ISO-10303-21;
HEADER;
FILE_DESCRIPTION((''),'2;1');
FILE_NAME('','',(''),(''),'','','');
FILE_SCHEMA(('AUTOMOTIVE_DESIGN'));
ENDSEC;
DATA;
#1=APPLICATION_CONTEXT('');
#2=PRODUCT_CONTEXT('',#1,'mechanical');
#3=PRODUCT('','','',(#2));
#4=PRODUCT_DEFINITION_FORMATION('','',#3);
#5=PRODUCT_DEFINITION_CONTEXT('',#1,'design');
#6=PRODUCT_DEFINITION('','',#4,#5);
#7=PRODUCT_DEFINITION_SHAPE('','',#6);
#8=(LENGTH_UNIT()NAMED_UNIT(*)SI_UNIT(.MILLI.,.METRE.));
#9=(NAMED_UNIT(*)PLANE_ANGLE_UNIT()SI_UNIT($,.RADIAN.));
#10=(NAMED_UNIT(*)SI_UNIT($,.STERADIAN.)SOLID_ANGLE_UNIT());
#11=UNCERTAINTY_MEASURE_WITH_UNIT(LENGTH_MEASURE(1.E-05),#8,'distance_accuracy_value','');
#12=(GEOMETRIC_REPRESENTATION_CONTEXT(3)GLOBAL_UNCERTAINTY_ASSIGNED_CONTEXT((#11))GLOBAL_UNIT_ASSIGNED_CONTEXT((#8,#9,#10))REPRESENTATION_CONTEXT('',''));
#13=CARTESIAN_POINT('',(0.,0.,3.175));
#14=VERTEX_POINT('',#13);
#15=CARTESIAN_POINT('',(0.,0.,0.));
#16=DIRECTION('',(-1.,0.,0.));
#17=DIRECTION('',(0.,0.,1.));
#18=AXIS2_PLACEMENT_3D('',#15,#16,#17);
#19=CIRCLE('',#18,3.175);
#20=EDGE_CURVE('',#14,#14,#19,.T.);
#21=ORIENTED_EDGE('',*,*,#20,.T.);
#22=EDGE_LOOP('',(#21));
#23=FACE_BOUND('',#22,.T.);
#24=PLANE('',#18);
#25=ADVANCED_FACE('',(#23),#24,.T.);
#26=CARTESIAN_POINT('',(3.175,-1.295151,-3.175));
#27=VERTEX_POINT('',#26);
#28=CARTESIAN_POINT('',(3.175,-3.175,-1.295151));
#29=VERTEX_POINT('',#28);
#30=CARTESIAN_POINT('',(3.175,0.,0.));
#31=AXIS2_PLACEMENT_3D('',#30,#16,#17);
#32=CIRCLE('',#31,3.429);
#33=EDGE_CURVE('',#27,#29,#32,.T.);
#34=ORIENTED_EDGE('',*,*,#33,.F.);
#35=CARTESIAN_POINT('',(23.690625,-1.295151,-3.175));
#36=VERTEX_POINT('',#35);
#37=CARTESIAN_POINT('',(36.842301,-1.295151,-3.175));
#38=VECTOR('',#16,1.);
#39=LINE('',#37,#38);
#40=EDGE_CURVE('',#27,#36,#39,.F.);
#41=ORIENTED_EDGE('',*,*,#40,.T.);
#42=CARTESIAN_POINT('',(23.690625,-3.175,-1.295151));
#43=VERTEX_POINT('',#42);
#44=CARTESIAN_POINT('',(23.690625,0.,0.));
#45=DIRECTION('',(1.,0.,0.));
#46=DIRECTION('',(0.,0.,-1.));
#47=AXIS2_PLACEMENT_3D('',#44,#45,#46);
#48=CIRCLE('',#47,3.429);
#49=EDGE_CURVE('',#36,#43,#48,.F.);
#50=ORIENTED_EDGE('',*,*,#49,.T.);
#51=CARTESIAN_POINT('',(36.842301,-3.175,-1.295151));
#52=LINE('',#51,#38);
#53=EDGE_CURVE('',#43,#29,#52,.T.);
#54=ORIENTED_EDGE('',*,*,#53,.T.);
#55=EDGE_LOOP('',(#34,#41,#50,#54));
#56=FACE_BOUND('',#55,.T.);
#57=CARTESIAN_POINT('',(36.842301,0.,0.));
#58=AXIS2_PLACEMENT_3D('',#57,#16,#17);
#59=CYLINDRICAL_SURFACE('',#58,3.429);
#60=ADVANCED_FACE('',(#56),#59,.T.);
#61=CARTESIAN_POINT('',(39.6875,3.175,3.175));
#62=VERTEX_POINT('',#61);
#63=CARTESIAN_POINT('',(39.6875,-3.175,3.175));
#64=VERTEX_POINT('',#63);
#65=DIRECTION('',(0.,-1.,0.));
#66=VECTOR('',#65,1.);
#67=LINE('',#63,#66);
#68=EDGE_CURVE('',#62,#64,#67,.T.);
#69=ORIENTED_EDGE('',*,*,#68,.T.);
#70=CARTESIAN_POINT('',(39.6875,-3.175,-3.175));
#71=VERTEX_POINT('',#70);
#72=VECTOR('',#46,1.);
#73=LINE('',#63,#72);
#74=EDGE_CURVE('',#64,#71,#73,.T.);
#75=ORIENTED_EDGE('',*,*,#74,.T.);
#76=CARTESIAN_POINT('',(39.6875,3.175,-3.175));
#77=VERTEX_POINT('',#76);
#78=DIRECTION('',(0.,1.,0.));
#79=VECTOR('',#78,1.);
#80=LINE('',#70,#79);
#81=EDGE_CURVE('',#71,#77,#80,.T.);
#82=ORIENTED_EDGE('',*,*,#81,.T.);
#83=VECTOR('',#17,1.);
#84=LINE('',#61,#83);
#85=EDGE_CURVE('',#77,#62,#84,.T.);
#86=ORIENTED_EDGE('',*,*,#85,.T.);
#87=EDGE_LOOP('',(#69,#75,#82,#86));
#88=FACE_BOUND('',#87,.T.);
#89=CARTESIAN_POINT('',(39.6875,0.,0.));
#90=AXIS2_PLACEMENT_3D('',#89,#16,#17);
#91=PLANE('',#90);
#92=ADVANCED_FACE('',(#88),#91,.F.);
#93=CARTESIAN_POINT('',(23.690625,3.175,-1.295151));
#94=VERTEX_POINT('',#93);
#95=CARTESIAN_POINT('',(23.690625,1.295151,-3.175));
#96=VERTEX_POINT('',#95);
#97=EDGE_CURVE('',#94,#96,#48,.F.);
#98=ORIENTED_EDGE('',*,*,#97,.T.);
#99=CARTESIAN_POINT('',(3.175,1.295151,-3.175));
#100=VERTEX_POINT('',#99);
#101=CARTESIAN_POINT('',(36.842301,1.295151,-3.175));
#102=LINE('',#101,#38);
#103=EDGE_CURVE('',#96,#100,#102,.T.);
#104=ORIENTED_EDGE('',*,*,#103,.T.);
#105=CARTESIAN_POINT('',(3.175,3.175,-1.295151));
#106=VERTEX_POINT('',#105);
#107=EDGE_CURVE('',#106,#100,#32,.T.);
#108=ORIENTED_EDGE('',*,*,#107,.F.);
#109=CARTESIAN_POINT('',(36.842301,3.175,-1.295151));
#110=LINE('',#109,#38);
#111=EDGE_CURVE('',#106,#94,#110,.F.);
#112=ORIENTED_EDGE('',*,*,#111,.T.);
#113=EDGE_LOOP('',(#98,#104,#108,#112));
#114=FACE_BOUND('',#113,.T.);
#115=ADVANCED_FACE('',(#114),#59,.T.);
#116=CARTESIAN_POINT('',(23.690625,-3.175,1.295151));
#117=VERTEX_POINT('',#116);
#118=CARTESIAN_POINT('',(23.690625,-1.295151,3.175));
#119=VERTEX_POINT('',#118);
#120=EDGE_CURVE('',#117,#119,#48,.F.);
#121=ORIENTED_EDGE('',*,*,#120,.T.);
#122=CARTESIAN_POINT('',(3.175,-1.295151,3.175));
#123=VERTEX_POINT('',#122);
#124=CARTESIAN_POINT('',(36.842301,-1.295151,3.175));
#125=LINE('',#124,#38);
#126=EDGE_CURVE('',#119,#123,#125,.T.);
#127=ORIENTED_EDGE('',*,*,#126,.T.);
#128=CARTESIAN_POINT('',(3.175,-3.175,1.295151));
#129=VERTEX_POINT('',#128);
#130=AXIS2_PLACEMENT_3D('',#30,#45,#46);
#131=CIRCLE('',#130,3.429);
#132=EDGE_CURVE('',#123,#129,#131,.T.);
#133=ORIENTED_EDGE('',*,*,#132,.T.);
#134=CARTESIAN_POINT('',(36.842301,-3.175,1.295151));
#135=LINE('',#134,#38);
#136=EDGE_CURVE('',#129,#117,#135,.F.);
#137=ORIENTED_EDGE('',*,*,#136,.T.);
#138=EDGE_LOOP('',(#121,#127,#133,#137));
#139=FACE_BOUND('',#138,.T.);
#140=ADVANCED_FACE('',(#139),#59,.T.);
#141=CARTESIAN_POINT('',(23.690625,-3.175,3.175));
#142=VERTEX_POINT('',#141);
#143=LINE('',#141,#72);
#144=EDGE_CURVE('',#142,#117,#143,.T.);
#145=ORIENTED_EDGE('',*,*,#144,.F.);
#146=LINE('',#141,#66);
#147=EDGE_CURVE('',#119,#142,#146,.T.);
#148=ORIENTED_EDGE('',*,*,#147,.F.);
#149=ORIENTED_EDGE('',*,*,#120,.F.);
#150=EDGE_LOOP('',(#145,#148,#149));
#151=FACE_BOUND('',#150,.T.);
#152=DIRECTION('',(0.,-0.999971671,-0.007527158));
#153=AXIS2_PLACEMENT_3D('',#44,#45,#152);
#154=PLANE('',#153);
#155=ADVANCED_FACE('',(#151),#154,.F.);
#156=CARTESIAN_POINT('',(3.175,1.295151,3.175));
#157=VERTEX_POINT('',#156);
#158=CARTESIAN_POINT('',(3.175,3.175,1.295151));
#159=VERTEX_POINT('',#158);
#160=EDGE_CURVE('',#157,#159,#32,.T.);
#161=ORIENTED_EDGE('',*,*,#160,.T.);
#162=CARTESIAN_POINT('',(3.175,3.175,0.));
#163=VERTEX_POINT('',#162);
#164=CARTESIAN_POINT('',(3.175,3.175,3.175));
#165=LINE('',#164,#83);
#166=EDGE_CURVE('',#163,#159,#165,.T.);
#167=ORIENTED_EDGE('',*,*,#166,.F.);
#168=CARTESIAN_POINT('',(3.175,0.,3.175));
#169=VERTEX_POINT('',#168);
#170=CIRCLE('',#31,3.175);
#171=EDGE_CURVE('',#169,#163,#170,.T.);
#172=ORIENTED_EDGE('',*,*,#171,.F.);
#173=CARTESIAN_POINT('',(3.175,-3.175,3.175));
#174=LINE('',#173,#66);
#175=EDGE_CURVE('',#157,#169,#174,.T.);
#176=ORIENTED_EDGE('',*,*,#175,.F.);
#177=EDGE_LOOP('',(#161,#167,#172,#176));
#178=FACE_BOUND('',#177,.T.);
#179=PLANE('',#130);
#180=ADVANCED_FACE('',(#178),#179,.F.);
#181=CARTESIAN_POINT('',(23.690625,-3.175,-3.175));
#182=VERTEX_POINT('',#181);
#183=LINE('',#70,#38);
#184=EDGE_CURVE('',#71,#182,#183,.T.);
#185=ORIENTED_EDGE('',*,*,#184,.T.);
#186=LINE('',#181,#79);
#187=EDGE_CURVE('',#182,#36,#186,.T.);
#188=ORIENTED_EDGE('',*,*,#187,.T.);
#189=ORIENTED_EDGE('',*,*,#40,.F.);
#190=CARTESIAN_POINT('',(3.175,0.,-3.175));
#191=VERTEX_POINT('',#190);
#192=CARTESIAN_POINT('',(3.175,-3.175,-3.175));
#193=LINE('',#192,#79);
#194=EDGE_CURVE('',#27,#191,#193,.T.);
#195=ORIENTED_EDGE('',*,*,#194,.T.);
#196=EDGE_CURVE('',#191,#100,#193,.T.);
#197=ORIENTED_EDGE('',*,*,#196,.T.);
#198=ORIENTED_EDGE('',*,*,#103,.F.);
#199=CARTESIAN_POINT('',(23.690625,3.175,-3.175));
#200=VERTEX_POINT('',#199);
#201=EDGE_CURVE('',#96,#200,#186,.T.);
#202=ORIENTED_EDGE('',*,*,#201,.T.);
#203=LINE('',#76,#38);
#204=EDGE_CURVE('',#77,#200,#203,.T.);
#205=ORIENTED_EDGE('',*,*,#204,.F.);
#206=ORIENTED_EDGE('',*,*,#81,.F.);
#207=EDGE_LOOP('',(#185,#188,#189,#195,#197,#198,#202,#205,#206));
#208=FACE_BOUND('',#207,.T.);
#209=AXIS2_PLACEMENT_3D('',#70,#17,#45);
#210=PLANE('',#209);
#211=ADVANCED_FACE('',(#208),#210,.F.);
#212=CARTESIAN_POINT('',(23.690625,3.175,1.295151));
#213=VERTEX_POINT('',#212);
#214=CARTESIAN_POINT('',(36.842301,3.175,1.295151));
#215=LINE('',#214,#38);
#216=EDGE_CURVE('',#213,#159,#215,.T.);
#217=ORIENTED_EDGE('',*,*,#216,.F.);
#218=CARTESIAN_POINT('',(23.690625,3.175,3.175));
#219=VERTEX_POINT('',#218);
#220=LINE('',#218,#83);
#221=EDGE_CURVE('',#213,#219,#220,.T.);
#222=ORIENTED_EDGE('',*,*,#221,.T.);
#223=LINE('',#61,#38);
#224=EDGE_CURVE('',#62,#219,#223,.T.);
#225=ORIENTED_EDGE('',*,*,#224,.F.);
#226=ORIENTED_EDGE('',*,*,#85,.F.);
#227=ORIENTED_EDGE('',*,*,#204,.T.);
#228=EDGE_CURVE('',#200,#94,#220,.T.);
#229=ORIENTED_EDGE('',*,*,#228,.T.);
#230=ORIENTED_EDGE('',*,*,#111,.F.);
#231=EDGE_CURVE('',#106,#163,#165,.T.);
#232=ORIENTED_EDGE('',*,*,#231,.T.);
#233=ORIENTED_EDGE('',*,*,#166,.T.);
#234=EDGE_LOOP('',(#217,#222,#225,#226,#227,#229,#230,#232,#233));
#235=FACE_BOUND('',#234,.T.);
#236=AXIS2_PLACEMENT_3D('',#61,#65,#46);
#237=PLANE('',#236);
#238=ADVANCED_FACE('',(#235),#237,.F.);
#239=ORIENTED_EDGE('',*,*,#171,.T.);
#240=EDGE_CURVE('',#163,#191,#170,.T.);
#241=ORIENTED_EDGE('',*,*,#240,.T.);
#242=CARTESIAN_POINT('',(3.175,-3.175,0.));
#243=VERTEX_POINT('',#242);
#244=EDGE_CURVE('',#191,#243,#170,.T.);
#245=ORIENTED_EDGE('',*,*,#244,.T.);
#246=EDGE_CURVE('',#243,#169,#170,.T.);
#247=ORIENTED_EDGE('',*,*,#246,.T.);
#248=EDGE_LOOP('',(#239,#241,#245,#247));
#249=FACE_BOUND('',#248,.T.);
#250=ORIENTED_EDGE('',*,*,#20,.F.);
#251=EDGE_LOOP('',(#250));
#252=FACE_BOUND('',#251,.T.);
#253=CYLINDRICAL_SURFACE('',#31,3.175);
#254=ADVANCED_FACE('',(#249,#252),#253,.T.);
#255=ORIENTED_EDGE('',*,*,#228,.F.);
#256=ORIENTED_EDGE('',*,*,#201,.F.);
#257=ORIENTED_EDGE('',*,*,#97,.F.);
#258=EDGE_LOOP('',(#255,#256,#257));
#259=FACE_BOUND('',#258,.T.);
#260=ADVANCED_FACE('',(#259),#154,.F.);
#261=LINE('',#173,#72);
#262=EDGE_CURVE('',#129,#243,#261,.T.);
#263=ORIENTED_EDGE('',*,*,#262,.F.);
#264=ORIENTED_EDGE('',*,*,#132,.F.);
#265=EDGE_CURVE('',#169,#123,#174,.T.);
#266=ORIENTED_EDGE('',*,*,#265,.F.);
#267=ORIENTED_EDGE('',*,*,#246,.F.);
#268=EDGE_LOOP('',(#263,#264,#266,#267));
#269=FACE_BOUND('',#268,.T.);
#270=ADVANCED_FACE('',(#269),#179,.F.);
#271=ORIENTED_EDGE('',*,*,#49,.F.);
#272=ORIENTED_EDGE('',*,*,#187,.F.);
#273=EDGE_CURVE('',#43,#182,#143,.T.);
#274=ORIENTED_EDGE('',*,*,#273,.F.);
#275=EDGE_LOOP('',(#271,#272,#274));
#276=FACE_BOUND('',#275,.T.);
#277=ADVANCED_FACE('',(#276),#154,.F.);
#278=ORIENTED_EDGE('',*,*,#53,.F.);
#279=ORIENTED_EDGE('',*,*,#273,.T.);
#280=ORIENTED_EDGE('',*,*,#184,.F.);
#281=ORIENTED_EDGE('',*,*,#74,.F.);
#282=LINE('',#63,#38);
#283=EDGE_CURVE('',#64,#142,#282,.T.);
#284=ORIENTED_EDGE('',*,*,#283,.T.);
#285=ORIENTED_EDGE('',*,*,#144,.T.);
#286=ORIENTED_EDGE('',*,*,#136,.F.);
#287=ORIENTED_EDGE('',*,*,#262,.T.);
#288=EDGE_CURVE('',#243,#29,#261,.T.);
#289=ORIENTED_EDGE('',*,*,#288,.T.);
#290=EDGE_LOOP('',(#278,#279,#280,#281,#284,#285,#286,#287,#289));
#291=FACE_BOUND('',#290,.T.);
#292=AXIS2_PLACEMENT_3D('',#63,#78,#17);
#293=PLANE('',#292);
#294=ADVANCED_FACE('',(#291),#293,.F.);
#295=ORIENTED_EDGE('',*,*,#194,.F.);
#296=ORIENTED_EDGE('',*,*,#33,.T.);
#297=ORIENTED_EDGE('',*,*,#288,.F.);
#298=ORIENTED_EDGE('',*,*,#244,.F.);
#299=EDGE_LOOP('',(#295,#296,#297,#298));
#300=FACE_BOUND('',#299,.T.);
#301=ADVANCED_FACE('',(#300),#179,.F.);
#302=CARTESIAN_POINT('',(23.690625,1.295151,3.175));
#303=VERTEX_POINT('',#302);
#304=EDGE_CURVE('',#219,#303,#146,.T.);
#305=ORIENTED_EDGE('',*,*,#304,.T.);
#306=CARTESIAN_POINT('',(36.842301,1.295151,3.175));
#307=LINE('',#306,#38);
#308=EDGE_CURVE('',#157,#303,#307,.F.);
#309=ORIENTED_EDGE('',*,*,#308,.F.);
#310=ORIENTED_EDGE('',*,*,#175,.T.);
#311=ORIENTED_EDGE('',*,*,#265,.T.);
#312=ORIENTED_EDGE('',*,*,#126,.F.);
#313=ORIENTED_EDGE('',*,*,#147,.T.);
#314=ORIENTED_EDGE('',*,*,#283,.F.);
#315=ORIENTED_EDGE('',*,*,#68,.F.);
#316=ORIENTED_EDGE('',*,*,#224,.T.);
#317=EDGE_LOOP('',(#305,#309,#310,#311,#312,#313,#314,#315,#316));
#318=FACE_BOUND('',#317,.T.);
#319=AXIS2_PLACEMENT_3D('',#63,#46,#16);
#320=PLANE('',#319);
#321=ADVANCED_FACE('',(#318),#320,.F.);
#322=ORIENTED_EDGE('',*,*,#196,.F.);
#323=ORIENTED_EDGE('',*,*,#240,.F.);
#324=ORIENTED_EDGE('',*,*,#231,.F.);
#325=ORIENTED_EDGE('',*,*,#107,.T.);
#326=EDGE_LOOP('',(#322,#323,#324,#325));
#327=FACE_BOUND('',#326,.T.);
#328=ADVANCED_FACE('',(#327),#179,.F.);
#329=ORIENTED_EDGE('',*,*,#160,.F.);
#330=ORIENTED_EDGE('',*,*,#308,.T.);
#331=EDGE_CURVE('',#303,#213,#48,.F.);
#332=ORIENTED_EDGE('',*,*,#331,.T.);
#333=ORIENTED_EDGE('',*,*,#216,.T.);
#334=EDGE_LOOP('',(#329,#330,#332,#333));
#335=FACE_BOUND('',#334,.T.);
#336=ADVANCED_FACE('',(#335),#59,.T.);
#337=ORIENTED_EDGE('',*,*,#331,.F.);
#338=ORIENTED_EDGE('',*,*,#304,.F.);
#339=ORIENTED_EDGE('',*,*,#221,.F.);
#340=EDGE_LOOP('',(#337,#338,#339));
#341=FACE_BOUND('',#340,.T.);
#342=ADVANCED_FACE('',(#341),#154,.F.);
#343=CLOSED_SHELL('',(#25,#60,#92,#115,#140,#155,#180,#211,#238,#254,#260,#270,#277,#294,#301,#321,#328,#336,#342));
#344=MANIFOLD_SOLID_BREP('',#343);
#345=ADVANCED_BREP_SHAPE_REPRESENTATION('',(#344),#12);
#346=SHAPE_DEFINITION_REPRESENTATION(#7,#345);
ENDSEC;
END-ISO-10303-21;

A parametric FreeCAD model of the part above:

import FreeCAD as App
import Part
import Sketcher
Q = App.Units.Quantity

doc = App.newDocument("Part")
params = doc.addObject("Spreadsheet::Sheet", "Params")
for row, (alias, value) in enumerate([
    ("sketch1_width", "0.25 in"),
    ("pad1_length", "1.5625 in"),
    ("sketch2_diameter", "0.25 in"),
    ("pocket1_length", "0.125 in"),
    ("sketch3_diameter", "0.27 in"),
    ("pocket2_length", "20.515625 mm"),
], start=1):
    params.set(f"A{row}", alias)
    params.set(f"B{row}", "=" + value)
    params.setAlias(f"B{row}", alias)

body = doc.addObject("PartDesign::Body", "Body")

# Sketch on YZ plane
sketch1 = doc.addObject("Sketcher::SketchObject", "Sketch")
body.addObject(sketch1)
sketch1.AttachmentSupport = (doc.YZ_Plane, [""])
sketch1.MapMode = "FlatFace"
sketch1.addGeometry(Part.LineSegment(App.Vector(3, 3, 0), App.Vector(-3, 3, 0)), False)
sketch1.addGeometry(Part.LineSegment(App.Vector(-3, 3, 0), App.Vector(-3, -3, 0)), False)
sketch1.addGeometry(Part.LineSegment(App.Vector(-3, -3, 0), App.Vector(3, -3, 0)), False)
sketch1.addGeometry(Part.LineSegment(App.Vector(3, -3, 0), App.Vector(3, 3, 0)), False)
sketch1.addConstraint(Sketcher.Constraint("Coincident", 0, 2, 1, 1))
sketch1.addConstraint(Sketcher.Constraint("Coincident", 1, 2, 2, 1))
sketch1.addConstraint(Sketcher.Constraint("Coincident", 2, 2, 3, 1))
sketch1.addConstraint(Sketcher.Constraint("Coincident", 3, 2, 0, 1))
sketch1.addConstraint(Sketcher.Constraint("Horizontal", 0))
sketch1.addConstraint(Sketcher.Constraint("Vertical", 1))
sketch1.addConstraint(Sketcher.Constraint("Horizontal", 2))
sketch1.addConstraint(Sketcher.Constraint("Vertical", 3))
sketch1.addConstraint(Sketcher.Constraint("Symmetric", 0, 2, 2, 2, -1, 1))
sketch1.addConstraint(Sketcher.Constraint("Equal", 2, 1))
sketch1.addConstraint(Sketcher.Constraint("DistanceX", 0, 2, 0, 1, Q("0.25 in")))
sketch1.setExpression("Constraints[10]", "Params.sketch1_width")
pad1 = doc.addObject("PartDesign::Pad", "Pad")
body.addObject(pad1)
pad1.Profile = sketch1
pad1.setExpression("Length", "Params.pad1_length")

# Sketch on YZ plane
sketch2 = doc.addObject("Sketcher::SketchObject", "Sketch001")
body.addObject(sketch2)
sketch2.AttachmentSupport = (doc.YZ_Plane, [""])
sketch2.MapMode = "FlatFace"
sketch2.addGeometry(Part.LineSegment(App.Vector(4.1, -5.5, 0), App.Vector(-4.1, -5.5, 0)), False)
sketch2.addGeometry(Part.LineSegment(App.Vector(-4.1, -5.5, 0), App.Vector(-4.1, 5.5, 0)), False)
sketch2.addGeometry(Part.LineSegment(App.Vector(-4.1, 5.5, 0), App.Vector(4.1, 5.5, 0)), False)
sketch2.addGeometry(Part.LineSegment(App.Vector(4.1, 5.5, 0), App.Vector(4.1, -5.5, 0)), False)
sketch2.addGeometry(Part.Circle(App.Vector(0, 0, 0), App.Vector(0, 0, 1), 3.2), False)
sketch2.addConstraint(Sketcher.Constraint("Coincident", 0, 2, 1, 1))
sketch2.addConstraint(Sketcher.Constraint("Coincident", 1, 2, 2, 1))
sketch2.addConstraint(Sketcher.Constraint("Coincident", 2, 2, 3, 1))
sketch2.addConstraint(Sketcher.Constraint("Coincident", 3, 2, 0, 1))
sketch2.addConstraint(Sketcher.Constraint("Horizontal", 0))
sketch2.addConstraint(Sketcher.Constraint("Vertical", 1))
sketch2.addConstraint(Sketcher.Constraint("Horizontal", 2))
sketch2.addConstraint(Sketcher.Constraint("Vertical", 3))
sketch2.addConstraint(Sketcher.Constraint("Coincident", 4, 3, -1, 1))
sketch2.addConstraint(Sketcher.Constraint("Symmetric", 0, 2, 2, 2, -1, 1))
sketch2.addConstraint(Sketcher.Constraint("Diameter", 4, Q("0.25 in")))
sketch2.addConstraint(Sketcher.Constraint("DistanceX", 0, 2, 0, 1, Q("8.106257 mm")))
sketch2.addConstraint(Sketcher.Constraint("DistanceY", 1, 1, 1, 2, Q("11.064537 mm")))
sketch2.setExpression("Constraints[10]", "Params.sketch2_diameter")
pocket1 = doc.addObject("PartDesign::Pocket", "Pocket")
body.addObject(pocket1)
pocket1.Profile = sketch2
pocket1.setExpression("Length", "Params.pocket1_length")
pocket1.Reversed = True

# Sketch on YZ plane
sketch3 = doc.addObject("Sketcher::SketchObject", "Sketch002")
body.addObject(sketch3)
sketch3.AttachmentSupport = (doc.YZ_Plane, [""])
sketch3.MapMode = "FlatFace"
sketch3.AttachmentOffset = App.Placement(App.Vector(0, 0, 23.690625), App.Rotation())
sketch3.addGeometry(Part.LineSegment(App.Vector(4.7, -4.6, 0), App.Vector(-4.7, -4.6, 0)), False)
sketch3.addGeometry(Part.LineSegment(App.Vector(-4.7, -4.6, 0), App.Vector(-4.7, 4.6, 0)), False)
sketch3.addGeometry(Part.LineSegment(App.Vector(-4.7, 4.6, 0), App.Vector(4.7, 4.6, 0)), False)
sketch3.addGeometry(Part.LineSegment(App.Vector(4.7, 4.6, 0), App.Vector(4.7, -4.6, 0)), False)
sketch3.addGeometry(Part.Circle(App.Vector(0, 0, 0), App.Vector(0, 0, 1), 3.4), False)
sketch3.addConstraint(Sketcher.Constraint("Coincident", 0, 2, 1, 1))
sketch3.addConstraint(Sketcher.Constraint("Coincident", 1, 2, 2, 1))
sketch3.addConstraint(Sketcher.Constraint("Coincident", 2, 2, 3, 1))
sketch3.addConstraint(Sketcher.Constraint("Coincident", 3, 2, 0, 1))
sketch3.addConstraint(Sketcher.Constraint("Horizontal", 0))
sketch3.addConstraint(Sketcher.Constraint("Vertical", 1))
sketch3.addConstraint(Sketcher.Constraint("Horizontal", 2))
sketch3.addConstraint(Sketcher.Constraint("Vertical", 3))
sketch3.addConstraint(Sketcher.Constraint("Coincident", 4, 3, -1, 1))
sketch3.addConstraint(Sketcher.Constraint("Symmetric", 0, 2, 2, 2, -1, 1))
sketch3.addConstraint(Sketcher.Constraint("Diameter", 4, Q("0.27 in")))
sketch3.addConstraint(Sketcher.Constraint("DistanceX", 0, 2, 0, 1, Q("9.382175 mm")))
sketch3.addConstraint(Sketcher.Constraint("DistanceY", 1, 1, 1, 2, Q("9.216365 mm")))
sketch3.setExpression("Constraints[10]", "Params.sketch3_diameter")
pocket2 = doc.addObject("PartDesign::Pocket", "Pocket001")
body.addObject(pocket2)
pocket2.Profile = sketch3
pocket2.setExpression("Length", "Params.pocket2_length")

doc.recompute()
